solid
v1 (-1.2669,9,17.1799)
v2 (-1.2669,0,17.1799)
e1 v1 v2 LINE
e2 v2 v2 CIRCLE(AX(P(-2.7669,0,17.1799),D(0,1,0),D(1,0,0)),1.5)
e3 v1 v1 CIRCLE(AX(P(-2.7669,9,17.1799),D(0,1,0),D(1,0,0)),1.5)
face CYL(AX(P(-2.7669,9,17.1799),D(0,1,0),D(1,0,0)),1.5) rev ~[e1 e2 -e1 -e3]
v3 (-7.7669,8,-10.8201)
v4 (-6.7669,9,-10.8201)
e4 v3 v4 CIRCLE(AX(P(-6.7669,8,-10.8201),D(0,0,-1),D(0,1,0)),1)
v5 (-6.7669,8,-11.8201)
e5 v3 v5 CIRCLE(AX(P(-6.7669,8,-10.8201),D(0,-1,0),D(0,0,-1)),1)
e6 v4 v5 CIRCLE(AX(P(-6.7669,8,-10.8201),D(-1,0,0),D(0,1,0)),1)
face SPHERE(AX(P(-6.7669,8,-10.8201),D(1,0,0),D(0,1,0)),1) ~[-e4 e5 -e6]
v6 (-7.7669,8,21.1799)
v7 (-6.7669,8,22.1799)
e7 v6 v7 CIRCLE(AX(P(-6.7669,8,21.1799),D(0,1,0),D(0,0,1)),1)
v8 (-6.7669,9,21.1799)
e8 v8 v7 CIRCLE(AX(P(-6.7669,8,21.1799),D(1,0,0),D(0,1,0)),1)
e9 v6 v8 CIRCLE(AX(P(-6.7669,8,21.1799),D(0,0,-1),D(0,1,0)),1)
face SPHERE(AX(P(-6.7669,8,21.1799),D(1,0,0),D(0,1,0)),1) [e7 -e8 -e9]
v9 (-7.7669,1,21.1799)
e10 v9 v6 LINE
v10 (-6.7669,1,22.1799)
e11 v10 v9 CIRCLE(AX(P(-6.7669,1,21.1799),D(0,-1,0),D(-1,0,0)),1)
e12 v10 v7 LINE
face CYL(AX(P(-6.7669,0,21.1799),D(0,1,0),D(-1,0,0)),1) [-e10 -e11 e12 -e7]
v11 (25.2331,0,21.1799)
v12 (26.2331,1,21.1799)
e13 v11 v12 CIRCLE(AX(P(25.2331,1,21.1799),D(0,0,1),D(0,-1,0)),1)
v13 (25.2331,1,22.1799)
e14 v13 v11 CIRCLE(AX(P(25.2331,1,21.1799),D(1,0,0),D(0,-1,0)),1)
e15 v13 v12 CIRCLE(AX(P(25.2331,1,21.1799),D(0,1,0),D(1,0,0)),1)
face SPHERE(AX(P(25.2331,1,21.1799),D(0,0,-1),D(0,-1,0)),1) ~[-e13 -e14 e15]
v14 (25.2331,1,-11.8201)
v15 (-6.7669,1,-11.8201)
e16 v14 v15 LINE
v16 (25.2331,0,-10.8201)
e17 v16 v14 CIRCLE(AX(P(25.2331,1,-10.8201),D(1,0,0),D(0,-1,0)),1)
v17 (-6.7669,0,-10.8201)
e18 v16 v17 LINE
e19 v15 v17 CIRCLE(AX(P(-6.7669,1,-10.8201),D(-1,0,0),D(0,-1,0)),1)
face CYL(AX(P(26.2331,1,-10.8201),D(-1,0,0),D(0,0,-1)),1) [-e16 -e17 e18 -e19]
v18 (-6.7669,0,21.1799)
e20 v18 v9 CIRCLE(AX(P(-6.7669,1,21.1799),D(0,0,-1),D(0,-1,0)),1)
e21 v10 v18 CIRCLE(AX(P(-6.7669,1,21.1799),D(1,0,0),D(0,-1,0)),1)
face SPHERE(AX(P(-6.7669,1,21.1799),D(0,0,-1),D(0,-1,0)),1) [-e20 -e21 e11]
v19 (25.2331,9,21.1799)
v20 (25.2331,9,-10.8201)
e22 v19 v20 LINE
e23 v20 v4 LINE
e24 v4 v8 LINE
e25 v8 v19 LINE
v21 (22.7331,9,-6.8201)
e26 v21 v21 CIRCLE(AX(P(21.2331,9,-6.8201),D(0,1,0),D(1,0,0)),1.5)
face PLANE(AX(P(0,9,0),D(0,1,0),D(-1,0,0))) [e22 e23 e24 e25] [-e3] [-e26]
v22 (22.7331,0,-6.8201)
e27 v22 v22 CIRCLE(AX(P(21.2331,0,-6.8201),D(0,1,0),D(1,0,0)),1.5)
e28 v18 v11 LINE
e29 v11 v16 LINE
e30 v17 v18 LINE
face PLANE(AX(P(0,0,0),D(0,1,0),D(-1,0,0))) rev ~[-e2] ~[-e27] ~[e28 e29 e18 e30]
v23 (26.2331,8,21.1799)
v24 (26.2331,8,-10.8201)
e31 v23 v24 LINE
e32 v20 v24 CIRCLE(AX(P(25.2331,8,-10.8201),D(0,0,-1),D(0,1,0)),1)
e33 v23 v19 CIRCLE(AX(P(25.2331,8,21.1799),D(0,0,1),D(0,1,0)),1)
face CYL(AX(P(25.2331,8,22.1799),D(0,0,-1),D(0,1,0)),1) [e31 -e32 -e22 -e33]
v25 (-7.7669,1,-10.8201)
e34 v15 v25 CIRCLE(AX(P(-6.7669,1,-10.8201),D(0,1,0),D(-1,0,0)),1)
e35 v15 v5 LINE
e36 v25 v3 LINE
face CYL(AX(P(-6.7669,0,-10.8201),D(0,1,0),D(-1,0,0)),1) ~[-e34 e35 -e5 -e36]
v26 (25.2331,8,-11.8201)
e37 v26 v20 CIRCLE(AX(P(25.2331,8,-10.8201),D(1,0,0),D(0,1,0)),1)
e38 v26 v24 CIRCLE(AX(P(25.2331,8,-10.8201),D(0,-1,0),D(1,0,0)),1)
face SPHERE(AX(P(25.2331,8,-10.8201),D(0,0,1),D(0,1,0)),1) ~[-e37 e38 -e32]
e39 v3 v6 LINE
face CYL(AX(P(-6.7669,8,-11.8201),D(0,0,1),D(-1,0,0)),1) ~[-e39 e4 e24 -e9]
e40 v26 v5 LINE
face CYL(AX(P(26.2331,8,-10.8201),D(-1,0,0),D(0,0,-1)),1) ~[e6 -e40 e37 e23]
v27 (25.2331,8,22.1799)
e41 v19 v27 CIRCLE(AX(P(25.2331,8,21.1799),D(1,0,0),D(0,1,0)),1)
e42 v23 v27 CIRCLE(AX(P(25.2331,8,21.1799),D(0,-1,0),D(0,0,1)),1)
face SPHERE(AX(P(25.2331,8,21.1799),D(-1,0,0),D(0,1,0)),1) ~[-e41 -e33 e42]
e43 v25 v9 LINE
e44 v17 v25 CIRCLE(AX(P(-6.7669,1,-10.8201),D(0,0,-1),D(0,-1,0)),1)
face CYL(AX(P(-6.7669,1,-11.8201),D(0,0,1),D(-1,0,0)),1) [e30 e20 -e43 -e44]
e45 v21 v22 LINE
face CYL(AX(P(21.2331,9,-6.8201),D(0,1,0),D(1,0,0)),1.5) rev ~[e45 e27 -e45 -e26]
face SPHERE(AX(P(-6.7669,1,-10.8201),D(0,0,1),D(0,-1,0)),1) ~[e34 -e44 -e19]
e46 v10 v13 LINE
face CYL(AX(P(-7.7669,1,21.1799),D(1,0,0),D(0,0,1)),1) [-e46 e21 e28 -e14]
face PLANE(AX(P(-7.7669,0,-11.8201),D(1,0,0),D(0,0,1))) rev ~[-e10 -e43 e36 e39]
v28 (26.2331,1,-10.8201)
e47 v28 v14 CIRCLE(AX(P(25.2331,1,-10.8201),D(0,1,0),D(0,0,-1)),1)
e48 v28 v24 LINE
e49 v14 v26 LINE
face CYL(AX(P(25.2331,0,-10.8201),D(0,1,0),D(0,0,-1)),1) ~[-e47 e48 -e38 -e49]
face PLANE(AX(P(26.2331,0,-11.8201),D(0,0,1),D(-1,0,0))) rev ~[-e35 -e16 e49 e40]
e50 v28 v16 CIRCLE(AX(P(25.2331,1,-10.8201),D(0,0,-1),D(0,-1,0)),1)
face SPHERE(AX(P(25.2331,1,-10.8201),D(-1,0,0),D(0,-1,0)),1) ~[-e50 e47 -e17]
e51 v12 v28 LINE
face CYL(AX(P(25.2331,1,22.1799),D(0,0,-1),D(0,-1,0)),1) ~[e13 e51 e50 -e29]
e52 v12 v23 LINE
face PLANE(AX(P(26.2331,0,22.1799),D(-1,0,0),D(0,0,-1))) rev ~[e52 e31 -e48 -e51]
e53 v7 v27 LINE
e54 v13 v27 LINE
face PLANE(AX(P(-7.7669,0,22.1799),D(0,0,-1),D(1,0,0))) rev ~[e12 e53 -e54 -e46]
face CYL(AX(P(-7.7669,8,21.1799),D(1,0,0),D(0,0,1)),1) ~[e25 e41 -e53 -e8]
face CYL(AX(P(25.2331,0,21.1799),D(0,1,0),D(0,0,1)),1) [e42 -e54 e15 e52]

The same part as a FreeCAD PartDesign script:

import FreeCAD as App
import Part
import Sketcher

V = App.Vector
Q = App.Units.Quantity


def edges_at(feature, points):
    """Names of the edges that pass closest to the given points."""
    edges = feature.Shape.Edges
    near = lambda p: min(range(len(edges)), key=lambda i: edges[i].distToShape(Part.Vertex(*p))[0])
    return sorted({f"Edge{near(p) + 1}" for p in points})

doc = App.newDocument("Part")
body = doc.addObject("PartDesign::Body", "Body")

# Sketch on XZ plane
sketch1 = doc.addObject("Sketcher::SketchObject", "Sketch")
body.addObject(sketch1)
sketch1.AttachmentSupport = (doc.XZ_Plane, [""])
sketch1.MapMode = "FlatFace"
sketch1.addGeometry([
    Part.LineSegment(V(-7.7669, -11.8201, 0), V(-7.7669, 22.1799, 0)),
    Part.LineSegment(V(-7.7669, 22.1799, 0), V(26.2331, 22.1799, 0)),
    Part.LineSegment(V(26.2331, 22.1799, 0), V(26.2331, -11.8201, 0)),
    Part.LineSegment(V(26.2331, -11.8201, 0), V(-7.7669, -11.8201, 0)),
], False)
sketch1.addConstraint([
    Sketcher.Constraint("Coincident", 0, 2, 1, 1),
    Sketcher.Constraint("Coincident", 1, 2, 2, 1),
    Sketcher.Constraint("Coincident", 2, 2, 3, 1),
    Sketcher.Constraint("Coincident", 3, 2, 0, 1),
    Sketcher.Constraint("Vertical", 0),
    Sketcher.Constraint("Horizontal", 1),
    Sketcher.Constraint("Vertical", 2),
    Sketcher.Constraint("Horizontal", 3),
    Sketcher.Constraint("Equal", 3, 0),
    Sketcher.Constraint("DistanceX", 1, 1, 1, 2, Q("34 mm")),
    Sketcher.Constraint("DistanceY", -1, 1, 0, 2, Q("22.18 mm")),
    Sketcher.Constraint("DistanceX", 0, 2, -1, 1, Q("7.767 mm")),
])
pad1 = doc.addObject("PartDesign::Pad", "Pad")
body.addObject(pad1)
pad1.Profile = sketch1
pad1.Length = 9
pad1.Reversed = True

# Sketch on XZ plane
sketch2 = doc.addObject("Sketcher::SketchObject", "Sketch001")
body.addObject(sketch2)
sketch2.AttachmentSupport = (doc.XZ_Plane, [""])
sketch2.MapMode = "FlatFace"
sketch2.AttachmentOffset = App.Placement(V(0, 0, -9), App.Rotation())
sketch2.addGeometry([
    Part.Circle(V(-2.7669, 17.1799, 0), V(0, 0, 1), 1.5),
    Part.Circle(V(21.2331, -6.8201, 0), V(0, 0, 1), 1.5),
], False)
sketch2.addConstraint([
    Sketcher.Constraint("Equal", 0, 1),
    Sketcher.Constraint("Diameter", 0, Q("3 mm")),
    Sketcher.Constraint("DistanceX", 0, 3, 1, 3, Q("24 mm")),
    Sketcher.Constraint("DistanceY", 1, 3, 0, 3, Q("24 mm")),
    Sketcher.Constraint("DistanceY", -1, 1, 0, 3, Q("17.18 mm")),
    Sketcher.Constraint("DistanceX", 0, 3, -1, 1, Q("2.767 mm")),
])
pocket1 = doc.addObject("PartDesign::Pocket", "Pocket")
body.addObject(pocket1)
pocket1.Profile = sketch2
pocket1.Length = 10
pocket1.Reversed = True
doc.recompute()

fillet = doc.addObject("PartDesign::Fillet", "Fillet")
body.addObject(fillet)
fillet.Base = (pocket1, edges_at(pocket1, [
    (9.233, 9, 22.18),
    (26.233, 9, 5.18),
    (9.233, 9, -11.82),
    (-7.767, 9, 5.18),
    (-7.767, 0, 5.18),
    (9.233, 0, -11.82),
    (26.233, 0, 5.18),
    (9.233, 0, 22.18),
    (26.233, 4.5, 22.18),
    (26.233, 4.5, -11.82),
    (-7.767, 4.5, -11.82),
    (-7.767, 4.5, 22.18),
]))
fillet.Radius = 1

doc.recompute()
